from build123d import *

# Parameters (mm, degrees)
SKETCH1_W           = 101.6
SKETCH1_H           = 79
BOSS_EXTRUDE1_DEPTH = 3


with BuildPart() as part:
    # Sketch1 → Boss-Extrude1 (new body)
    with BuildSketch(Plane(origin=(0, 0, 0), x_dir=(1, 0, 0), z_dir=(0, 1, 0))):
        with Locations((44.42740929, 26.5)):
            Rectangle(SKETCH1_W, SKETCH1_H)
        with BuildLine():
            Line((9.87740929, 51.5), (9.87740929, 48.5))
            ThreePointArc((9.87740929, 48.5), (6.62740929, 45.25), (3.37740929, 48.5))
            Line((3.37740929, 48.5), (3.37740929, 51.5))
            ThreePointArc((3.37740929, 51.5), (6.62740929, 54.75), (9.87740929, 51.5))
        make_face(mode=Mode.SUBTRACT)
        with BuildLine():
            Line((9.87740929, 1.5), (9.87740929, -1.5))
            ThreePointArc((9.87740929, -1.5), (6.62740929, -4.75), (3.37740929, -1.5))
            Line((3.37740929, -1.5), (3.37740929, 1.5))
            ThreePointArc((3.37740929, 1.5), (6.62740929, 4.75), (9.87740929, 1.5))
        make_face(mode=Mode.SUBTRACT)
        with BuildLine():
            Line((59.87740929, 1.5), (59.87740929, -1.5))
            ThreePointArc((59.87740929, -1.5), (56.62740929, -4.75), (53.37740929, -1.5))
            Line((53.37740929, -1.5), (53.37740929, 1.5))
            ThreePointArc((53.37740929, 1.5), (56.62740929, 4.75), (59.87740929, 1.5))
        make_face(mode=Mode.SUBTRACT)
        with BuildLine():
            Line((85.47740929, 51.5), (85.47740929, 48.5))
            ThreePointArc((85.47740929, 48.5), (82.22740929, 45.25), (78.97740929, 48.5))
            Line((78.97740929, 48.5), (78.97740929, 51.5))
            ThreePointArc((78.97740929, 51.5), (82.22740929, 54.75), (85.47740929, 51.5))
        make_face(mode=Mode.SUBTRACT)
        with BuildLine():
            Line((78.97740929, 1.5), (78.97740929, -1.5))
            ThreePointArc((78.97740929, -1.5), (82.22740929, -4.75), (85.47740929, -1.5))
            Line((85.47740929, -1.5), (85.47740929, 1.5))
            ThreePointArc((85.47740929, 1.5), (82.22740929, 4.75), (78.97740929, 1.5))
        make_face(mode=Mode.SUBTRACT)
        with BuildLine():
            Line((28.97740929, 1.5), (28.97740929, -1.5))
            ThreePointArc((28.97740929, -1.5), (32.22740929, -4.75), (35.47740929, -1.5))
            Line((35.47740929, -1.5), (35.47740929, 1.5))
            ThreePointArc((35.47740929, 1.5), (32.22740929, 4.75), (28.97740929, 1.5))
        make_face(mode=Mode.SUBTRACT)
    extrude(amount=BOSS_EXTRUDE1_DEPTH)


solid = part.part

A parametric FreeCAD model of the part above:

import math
import FreeCAD as App
import Part
import Sketcher

V = App.Vector


def add_polygon(sketch, points):
    """Adds a closed chain of lines whose ends are joined by coincident constraints."""
    first, n = sketch.GeometryCount, len(points)
    for a, b in zip(points, points[1:] + points[:1]):
        sketch.addGeometry(Part.LineSegment(App.Vector(*a, 0), App.Vector(*b, 0)), False)
    for i in range(n):
        sketch.addConstraint(Sketcher.Constraint("Coincident", first + i, 2, first + (i + 1) % n, 1))

doc = App.newDocument("Part")
body = doc.addObject("PartDesign::Body", "Body")

sketch1 = doc.addObject("Sketcher::SketchObject", "Sketch")
body.addObject(sketch1)
sketch1.AttachmentSupport = (doc.XZ_Plane, [""])
sketch1.MapMode = "FlatFace"
add_polygon(sketch1, [(-6.372591, -66), (-6.372591, 13), (95.227409, 13), (95.227409, -66)])
sketch1.addGeometry(Part.ArcOfCircle(Part.Circle(V(6.627409, -1.5, 0), V(0, 0, 1), 3.25), math.radians(180), math.radians(360)), False)
sketch1.addGeometry(Part.LineSegment(V(9.877409, -1.5, 0), V(9.877409, 1.5, 0)), False)
sketch1.addGeometry(Part.ArcOfCircle(Part.Circle(V(6.627409, 1.5, 0), V(0, 0, 1), 3.25), math.radians(0), math.radians(180)), False)
sketch1.addGeometry(Part.LineSegment(V(3.377409, 1.5, 0), V(3.377409, -1.5, 0)), False)
sketch1.addGeometry(Part.LineSegment(V(28.977409, 1.5, 0), V(28.977409, -1.5, 0)), False)
sketch1.addGeometry(Part.ArcOfCircle(Part.Circle(V(32.227409, -1.5, 0), V(0, 0, 1), 3.25), math.radians(180), math.radians(360)), False)
sketch1.addGeometry(Part.LineSegment(V(35.477409, -1.5, 0), V(35.477409, 1.5, 0)), False)
sketch1.addGeometry(Part.ArcOfCircle(Part.Circle(V(32.227409, 1.5, 0), V(0, 0, 1), 3.25), math.radians(0), math.radians(180)), False)
sketch1.addGeometry(Part.ArcOfCircle(Part.Circle(V(56.627409, -1.5, 0), V(0, 0, 1), 3.25), math.radians(180), math.radians(360)), False)
sketch1.addGeometry(Part.LineSegment(V(59.877409, -1.5, 0), V(59.877409, 1.5, 0)), False)
sketch1.addGeometry(Part.ArcOfCircle(Part.Circle(V(56.627409, 1.5, 0), V(0, 0, 1), 3.25), math.radians(0), math.radians(180)), False)
sketch1.addGeometry(Part.LineSegment(V(53.377409, 1.5, 0), V(53.377409, -1.5, 0)), False)
sketch1.addGeometry(Part.LineSegment(V(78.977409, 1.5, 0), V(78.977409, -1.5, 0)), False)
sketch1.addGeometry(Part.ArcOfCircle(Part.Circle(V(82.227409, -1.5, 0), V(0, 0, 1), 3.25), math.radians(180), math.radians(360)), False)
sketch1.addGeometry(Part.LineSegment(V(85.477409, -1.5, 0), V(85.477409, 1.5, 0)), False)
sketch1.addGeometry(Part.ArcOfCircle(Part.Circle(V(82.227409, 1.5, 0), V(0, 0, 1), 3.25), math.radians(0), math.radians(180)), False)
sketch1.addGeometry(Part.ArcOfCircle(Part.Circle(V(6.627409, -51.5, 0), V(0, 0, 1), 3.25), math.radians(180), math.radians(360)), False)
sketch1.addGeometry(Part.LineSegment(V(9.877409, -51.5, 0), V(9.877409, -48.5, 0)), False)
sketch1.addGeometry(Part.ArcOfCircle(Part.Circle(V(6.627409, -48.5, 0), V(0, 0, 1), 3.25), math.radians(0), math.radians(180)), False)
sketch1.addGeometry(Part.LineSegment(V(3.377409, -48.5, 0), V(3.377409, -51.5, 0)), False)
sketch1.addGeometry(Part.ArcOfCircle(Part.Circle(V(82.227409, -51.5, 0), V(0, 0, 1), 3.25), math.radians(180), math.radians(360)), False)
sketch1.addGeometry(Part.LineSegment(V(85.477409, -51.5, 0), V(85.477409, -48.5, 0)), False)
sketch1.addGeometry(Part.ArcOfCircle(Part.Circle(V(82.227409, -48.5, 0), V(0, 0, 1), 3.25), math.radians(0), math.radians(180)), False)
sketch1.addGeometry(Part.LineSegment(V(78.977409, -48.5, 0), V(78.977409, -51.5, 0)), False)
sketch1.addConstraint(Sketcher.Constraint("Tangent", 4, 2, 5, 1))
sketch1.addConstraint(Sketcher.Constraint("Tangent", 5, 2, 6, 1))
sketch1.addConstraint(Sketcher.Constraint("Tangent", 6, 2, 7, 1))
sketch1.addConstraint(Sketcher.Constraint("Tangent", 7, 2, 4, 1))
sketch1.addConstraint(Sketcher.Constraint("Tangent", 8, 2, 9, 1))
sketch1.addConstraint(Sketcher.Constraint("Tangent", 9, 2, 10, 1))
sketch1.addConstraint(Sketcher.Constraint("Tangent", 10, 2, 11, 1))
sketch1.addConstraint(Sketcher.Constraint("Tangent", 11, 2, 8, 1))
sketch1.addConstraint(Sketcher.Constraint("Tangent", 12, 2, 13, 1))
sketch1.addConstraint(Sketcher.Constraint("Tangent", 13, 2, 14, 1))
sketch1.addConstraint(Sketcher.Constraint("Tangent", 14, 2, 15, 1))
sketch1.addConstraint(Sketcher.Constraint("Tangent", 15, 2, 12, 1))
sketch1.addConstraint(Sketcher.Constraint("Tangent", 16, 2, 17, 1))
sketch1.addConstraint(Sketcher.Constraint("Tangent", 17, 2, 18, 1))
sketch1.addConstraint(Sketcher.Constraint("Tangent", 18, 2, 19, 1))
sketch1.addConstraint(Sketcher.Constraint("Tangent", 19, 2, 16, 1))
sketch1.addConstraint(Sketcher.Constraint("Tangent", 20, 2, 21, 1))
sketch1.addConstraint(Sketcher.Constraint("Tangent", 21, 2, 22, 1))
sketch1.addConstraint(Sketcher.Constraint("Tangent", 22, 2, 23, 1))
sketch1.addConstraint(Sketcher.Constraint("Tangent", 23, 2, 20, 1))
sketch1.addConstraint(Sketcher.Constraint("Tangent", 24, 2, 25, 1))
sketch1.addConstraint(Sketcher.Constraint("Tangent", 25, 2, 26, 1))
sketch1.addConstraint(Sketcher.Constraint("Tangent", 26, 2, 27, 1))
sketch1.addConstraint(Sketcher.Constraint("Tangent", 27, 2, 24, 1))
sketch1.addConstraint(Sketcher.Constraint("Vertical", 0))
sketch1.addConstraint(Sketcher.Constraint("Horizontal", 1))
sketch1.addConstraint(Sketcher.Constraint("Vertical", 2))
sketch1.addConstraint(Sketcher.Constraint("Horizontal", 3))
sketch1.addConstraint(Sketcher.Constraint("Vertical", 5))
sketch1.addConstraint(Sketcher.Constraint("Vertical", 7))
sketch1.addConstraint(Sketcher.Constraint("Vertical", 8))
sketch1.addConstraint(Sketcher.Constraint("Vertical", 10))
sketch1.addConstraint(Sketcher.Constraint("Vertical", 13))
sketch1.addConstraint(Sketcher.Constraint("Vertical", 15))
sketch1.addConstraint(Sketcher.Constraint("Vertical", 16))
sketch1.addConstraint(Sketcher.Constraint("Vertical", 18))
sketch1.addConstraint(Sketcher.Constraint("Vertical", 21))
sketch1.addConstraint(Sketcher.Constraint("Vertical", 23))
sketch1.addConstraint(Sketcher.Constraint("Vertical", 25))
sketch1.addConstraint(Sketcher.Constraint("Vertical", 27))
sketch1.addConstraint(Sketcher.Constraint("Equal", 6, 9))
sketch1.addConstraint(Sketcher.Constraint("Equal", 11, 12))
sketch1.addConstraint(Sketcher.Constraint("Equal", 14, 17))
sketch1.addConstraint(Sketcher.Constraint("Equal", 19, 20))
sketch1.addConstraint(Sketcher.Constraint("Equal", 22, 24))
sketch1.addConstraint(Sketcher.Constraint("Horizontal", 4, 3, 9, 3))
sketch1.addConstraint(Sketcher.Constraint("Horizontal", 6, 3, 11, 3))
sketch1.addConstraint(Sketcher.Constraint("Horizontal", 9, 3, 12, 3))
sketch1.addConstraint(Sketcher.Constraint("Horizontal", 11, 3, 14, 3))
sketch1.addConstraint(Sketcher.Constraint("Horizontal", 12, 3, 17, 3))
sketch1.addConstraint(Sketcher.Constraint("Horizontal", 14, 3, 19, 3))
sketch1.addConstraint(Sketcher.Constraint("Horizontal", 20, 3, 24, 3))
sketch1.addConstraint(Sketcher.Constraint("Horizontal", 22, 3, 26, 3))
sketch1.addConstraint(Sketcher.Constraint("Vertical", 6, 3, 20, 3))
sketch1.addConstraint(Sketcher.Constraint("Vertical", 19, 3, 24, 3))
sketch1.addConstraint(Sketcher.Constraint("Equal", 18, 21))
sketch1.addConstraint(Sketcher.Constraint("DistanceY", 0, 1, 0, 2, 79.0))
sketch1.addConstraint(Sketcher.Constraint("DistanceY", 5, 1, 5, 2, 3.0))
sketch1.addConstraint(Sketcher.Constraint("Radius", 4, 3.25))
sketch1.addConstraint(Sketcher.Constraint("DistanceX", 1, 1, 1, 2, 101.6))
sketch1.addConstraint(Sketcher.Constraint("DistanceY", -1, 1, 0, 2, 13.0))
sketch1.addConstraint(Sketcher.Constraint("DistanceX", 4, 3, 12, 3, 50.0))
sketch1.addConstraint(Sketcher.Constraint("DistanceX", 9, 3, 17, 3, 50.0))
sketch1.addConstraint(Sketcher.Constraint("DistanceY", 20, 3, 4, 3, 50.0))
sketch1.addConstraint(Sketcher.Constraint("DistanceX", 0, 2, 6, 3, 13.0))
sketch1.addConstraint(Sketcher.Constraint("DistanceX", 19, 3, 1, 2, 13.0))
sketch1.addConstraint(Sketcher.Constraint("DistanceY", 4, 3, -1, 1, 1.5))
sketch1.addConstraint(Sketcher.Constraint("DistanceX", -1, 1, 4, 3, 6.627409))
pad1 = doc.addObject("PartDesign::Pad", "Pad")
body.addObject(pad1)
pad1.Profile = sketch1
pad1.Length = 3
pad1.Reversed = True

doc.recompute()
